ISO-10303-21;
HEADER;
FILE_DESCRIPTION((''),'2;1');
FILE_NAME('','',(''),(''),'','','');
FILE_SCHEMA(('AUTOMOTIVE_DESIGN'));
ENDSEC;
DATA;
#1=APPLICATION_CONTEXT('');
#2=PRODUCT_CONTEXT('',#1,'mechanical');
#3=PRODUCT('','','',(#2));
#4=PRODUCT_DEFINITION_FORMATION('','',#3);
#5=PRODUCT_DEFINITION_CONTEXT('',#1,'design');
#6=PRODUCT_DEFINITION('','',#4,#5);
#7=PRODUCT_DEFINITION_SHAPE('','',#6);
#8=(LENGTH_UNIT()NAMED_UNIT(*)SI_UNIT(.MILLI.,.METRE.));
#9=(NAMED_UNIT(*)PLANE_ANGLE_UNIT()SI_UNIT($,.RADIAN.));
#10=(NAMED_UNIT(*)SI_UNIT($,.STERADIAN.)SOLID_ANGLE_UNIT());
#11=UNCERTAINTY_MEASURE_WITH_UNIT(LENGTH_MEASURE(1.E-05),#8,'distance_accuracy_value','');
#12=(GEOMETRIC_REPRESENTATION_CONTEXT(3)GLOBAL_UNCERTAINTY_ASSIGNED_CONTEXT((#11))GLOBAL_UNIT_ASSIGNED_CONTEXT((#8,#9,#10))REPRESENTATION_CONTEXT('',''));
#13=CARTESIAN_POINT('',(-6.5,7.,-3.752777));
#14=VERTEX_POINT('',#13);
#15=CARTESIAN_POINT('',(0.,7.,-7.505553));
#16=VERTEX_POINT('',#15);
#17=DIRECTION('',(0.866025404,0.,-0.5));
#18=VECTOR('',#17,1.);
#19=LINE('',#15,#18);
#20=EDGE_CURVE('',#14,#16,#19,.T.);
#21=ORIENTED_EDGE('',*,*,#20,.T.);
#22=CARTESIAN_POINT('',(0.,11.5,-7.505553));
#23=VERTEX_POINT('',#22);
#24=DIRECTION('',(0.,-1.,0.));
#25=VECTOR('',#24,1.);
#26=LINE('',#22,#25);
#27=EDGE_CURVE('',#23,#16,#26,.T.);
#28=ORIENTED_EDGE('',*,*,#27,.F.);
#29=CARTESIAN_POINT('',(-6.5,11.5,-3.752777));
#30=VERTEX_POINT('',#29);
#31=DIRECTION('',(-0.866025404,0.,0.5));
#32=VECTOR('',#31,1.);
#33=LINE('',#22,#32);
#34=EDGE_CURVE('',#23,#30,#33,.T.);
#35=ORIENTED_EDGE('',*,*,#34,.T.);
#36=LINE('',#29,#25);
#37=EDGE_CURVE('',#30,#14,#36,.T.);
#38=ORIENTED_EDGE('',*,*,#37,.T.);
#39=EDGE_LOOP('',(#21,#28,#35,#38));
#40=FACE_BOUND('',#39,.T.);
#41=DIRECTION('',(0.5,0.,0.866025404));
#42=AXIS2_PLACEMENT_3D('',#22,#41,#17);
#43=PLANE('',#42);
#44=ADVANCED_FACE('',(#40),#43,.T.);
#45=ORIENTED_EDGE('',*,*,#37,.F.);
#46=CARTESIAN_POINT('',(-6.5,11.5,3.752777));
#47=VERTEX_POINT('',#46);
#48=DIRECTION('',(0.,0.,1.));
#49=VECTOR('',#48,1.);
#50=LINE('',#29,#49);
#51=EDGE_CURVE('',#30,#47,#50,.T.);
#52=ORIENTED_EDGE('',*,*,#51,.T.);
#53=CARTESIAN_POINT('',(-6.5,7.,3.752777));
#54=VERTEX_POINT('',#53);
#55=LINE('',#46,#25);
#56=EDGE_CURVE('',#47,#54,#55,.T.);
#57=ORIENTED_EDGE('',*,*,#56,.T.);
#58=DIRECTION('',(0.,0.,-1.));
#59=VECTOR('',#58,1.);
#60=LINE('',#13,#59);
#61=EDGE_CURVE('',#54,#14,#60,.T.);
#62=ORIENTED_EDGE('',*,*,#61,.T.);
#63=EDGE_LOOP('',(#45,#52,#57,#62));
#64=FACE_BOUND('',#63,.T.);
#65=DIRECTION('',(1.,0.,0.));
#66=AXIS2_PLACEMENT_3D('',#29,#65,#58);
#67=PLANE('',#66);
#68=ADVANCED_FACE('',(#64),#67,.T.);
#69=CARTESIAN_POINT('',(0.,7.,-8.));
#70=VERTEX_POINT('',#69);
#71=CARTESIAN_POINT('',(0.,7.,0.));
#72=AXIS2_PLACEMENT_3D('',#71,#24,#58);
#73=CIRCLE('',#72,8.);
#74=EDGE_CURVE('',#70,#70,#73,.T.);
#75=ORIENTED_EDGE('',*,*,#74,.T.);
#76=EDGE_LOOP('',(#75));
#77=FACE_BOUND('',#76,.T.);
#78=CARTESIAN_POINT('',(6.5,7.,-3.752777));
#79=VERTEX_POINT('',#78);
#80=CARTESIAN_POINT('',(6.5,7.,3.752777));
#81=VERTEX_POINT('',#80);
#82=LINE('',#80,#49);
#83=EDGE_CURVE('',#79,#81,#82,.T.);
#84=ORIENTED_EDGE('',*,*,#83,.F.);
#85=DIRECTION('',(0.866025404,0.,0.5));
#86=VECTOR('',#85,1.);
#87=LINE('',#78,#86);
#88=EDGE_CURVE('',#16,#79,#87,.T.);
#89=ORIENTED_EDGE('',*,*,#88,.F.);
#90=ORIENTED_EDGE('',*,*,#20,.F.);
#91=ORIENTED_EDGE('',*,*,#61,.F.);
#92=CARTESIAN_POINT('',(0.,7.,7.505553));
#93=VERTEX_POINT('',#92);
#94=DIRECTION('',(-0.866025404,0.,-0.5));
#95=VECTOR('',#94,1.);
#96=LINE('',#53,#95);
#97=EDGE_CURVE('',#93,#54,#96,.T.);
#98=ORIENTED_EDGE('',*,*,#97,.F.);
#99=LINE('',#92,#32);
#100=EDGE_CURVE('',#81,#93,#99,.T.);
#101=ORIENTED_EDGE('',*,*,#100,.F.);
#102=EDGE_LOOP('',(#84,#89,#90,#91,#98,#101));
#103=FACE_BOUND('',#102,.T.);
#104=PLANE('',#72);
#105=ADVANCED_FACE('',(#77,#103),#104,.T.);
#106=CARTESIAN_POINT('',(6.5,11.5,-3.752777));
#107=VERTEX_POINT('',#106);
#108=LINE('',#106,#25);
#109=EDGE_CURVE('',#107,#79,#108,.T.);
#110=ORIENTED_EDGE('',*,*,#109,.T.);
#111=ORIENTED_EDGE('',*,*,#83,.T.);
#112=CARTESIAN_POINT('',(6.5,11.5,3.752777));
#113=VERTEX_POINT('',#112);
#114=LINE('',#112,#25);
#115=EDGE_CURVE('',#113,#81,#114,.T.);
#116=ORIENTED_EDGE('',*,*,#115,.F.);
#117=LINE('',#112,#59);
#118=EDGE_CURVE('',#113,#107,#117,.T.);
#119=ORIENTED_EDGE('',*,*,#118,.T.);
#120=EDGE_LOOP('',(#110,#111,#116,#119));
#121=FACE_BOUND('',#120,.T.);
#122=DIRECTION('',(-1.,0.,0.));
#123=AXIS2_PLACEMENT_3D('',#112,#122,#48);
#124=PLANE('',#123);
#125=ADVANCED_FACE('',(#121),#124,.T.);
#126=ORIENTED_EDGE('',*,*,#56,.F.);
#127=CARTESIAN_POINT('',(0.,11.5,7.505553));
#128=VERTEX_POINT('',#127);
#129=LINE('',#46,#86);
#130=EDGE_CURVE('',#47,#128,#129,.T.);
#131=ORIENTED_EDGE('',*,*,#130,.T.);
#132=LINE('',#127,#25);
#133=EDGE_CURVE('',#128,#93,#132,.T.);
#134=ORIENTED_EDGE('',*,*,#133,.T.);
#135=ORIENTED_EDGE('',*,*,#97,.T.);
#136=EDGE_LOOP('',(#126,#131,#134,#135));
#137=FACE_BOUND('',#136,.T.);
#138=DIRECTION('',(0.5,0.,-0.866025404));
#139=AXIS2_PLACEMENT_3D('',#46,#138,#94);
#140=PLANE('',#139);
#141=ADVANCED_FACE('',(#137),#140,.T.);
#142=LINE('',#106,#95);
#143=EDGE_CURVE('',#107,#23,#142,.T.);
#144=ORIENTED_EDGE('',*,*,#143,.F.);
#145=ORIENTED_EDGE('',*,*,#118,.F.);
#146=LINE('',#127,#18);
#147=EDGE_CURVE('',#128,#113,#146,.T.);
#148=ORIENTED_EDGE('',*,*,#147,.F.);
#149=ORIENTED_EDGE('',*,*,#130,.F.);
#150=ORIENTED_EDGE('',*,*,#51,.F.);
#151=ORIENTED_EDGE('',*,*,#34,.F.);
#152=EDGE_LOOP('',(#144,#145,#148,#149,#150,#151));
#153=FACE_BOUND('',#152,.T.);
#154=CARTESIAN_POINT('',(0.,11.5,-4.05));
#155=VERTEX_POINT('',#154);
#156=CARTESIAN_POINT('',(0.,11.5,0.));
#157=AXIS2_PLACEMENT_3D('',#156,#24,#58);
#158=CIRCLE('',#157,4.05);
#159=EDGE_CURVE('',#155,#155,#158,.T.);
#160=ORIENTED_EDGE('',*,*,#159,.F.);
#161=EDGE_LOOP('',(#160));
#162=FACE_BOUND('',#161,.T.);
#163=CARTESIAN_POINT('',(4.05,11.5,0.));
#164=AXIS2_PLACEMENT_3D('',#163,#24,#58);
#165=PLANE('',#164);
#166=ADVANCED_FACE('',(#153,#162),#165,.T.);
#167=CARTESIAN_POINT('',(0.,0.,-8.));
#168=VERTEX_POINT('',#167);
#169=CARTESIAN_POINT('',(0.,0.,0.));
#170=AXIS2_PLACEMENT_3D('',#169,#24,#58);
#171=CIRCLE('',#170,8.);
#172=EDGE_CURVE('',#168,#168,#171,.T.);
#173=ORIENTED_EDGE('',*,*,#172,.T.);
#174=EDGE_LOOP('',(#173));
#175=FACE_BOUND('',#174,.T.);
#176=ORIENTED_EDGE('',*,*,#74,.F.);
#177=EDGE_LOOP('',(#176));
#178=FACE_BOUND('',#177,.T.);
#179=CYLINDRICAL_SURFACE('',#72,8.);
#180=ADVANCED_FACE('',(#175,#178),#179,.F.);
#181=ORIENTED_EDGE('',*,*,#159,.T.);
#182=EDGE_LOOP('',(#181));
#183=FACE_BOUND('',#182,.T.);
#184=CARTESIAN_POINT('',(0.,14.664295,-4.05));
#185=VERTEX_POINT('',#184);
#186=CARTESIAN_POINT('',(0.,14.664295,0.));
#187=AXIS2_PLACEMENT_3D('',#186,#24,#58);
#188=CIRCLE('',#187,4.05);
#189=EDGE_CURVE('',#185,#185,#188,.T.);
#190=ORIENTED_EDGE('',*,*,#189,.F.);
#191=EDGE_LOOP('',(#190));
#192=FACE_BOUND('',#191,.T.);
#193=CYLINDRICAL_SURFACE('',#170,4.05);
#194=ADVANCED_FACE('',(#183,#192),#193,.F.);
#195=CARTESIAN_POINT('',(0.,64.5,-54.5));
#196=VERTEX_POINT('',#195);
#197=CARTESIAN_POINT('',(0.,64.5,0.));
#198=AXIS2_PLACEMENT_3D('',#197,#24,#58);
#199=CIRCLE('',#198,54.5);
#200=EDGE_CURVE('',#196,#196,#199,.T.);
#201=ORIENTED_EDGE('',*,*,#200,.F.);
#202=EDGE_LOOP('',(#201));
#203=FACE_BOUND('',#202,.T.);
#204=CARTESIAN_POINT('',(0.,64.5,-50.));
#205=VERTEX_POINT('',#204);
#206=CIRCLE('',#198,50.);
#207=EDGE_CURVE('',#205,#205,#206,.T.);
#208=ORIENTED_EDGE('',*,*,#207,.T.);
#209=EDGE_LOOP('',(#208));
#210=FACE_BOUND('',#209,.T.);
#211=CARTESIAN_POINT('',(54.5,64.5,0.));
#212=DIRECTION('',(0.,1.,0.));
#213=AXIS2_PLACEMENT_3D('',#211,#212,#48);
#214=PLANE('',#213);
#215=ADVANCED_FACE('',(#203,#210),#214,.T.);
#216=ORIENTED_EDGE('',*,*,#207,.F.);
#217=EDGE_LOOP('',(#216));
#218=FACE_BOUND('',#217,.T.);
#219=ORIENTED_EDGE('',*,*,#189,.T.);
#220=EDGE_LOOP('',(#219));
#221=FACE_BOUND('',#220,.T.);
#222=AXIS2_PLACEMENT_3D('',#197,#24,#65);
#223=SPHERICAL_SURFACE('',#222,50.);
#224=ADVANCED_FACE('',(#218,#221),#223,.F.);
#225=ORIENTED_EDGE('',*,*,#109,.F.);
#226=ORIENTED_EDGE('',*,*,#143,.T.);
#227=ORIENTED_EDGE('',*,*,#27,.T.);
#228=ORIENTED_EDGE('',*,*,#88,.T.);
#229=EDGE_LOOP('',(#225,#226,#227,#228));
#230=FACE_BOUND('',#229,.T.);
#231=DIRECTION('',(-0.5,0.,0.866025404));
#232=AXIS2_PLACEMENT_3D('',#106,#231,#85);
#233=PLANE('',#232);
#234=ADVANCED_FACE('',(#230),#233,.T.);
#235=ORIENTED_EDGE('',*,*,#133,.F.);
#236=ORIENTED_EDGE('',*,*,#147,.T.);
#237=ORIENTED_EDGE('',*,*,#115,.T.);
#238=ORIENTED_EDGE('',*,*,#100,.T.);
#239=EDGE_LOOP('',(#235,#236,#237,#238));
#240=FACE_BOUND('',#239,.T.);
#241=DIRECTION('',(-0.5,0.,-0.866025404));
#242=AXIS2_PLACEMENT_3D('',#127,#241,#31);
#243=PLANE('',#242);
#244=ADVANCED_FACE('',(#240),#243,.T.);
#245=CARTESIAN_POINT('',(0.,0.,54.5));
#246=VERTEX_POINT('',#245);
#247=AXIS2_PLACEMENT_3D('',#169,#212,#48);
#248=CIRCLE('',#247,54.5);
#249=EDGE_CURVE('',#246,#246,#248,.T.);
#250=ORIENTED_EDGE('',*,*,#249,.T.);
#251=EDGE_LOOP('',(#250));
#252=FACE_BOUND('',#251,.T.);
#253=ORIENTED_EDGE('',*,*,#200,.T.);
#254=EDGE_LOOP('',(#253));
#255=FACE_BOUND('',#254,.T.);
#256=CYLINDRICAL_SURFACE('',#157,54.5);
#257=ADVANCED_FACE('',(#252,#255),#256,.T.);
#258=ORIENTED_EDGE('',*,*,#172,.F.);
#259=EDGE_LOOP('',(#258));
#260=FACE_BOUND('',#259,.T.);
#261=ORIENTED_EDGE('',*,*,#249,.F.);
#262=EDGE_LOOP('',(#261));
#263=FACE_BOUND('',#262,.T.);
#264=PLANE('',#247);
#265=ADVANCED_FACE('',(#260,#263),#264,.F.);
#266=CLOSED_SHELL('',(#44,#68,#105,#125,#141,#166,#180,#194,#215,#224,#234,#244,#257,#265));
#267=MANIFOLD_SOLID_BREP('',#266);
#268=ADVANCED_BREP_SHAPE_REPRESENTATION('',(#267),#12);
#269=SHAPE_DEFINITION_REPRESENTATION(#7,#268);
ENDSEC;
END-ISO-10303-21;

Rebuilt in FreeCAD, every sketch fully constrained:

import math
import FreeCAD as App
import Part
import Sketcher
Q = App.Units.Quantity

doc = App.newDocument("Part")
body = doc.addObject("PartDesign::Body", "Body")

# Sketch on XZ plane
sketch1 = body.newObject("Sketcher::SketchObject", "Sketch")
sketch1.AttachmentSupport = (doc.getObject("XZ_Plane"), [""])
sketch1.MapMode = "FlatFace"
sketch1.addGeometry([
    Part.Circle(App.Vector(0, 0, 0), App.Vector(0, 0, 1), 54),  # 0
    Part.LineSegment(App.Vector(-6, -4, 0), App.Vector(0, -8, 0)),  # 1
    Part.LineSegment(App.Vector(0, -8, 0), App.Vector(6, -4, 0)),  # 2
    Part.LineSegment(App.Vector(6, -4, 0), App.Vector(6, 4, 0)),  # 3
    Part.LineSegment(App.Vector(6, 4, 0), App.Vector(0, 8, 0)),  # 4
    Part.LineSegment(App.Vector(0, 8, 0), App.Vector(-6, 4, 0)),  # 5
    Part.LineSegment(App.Vector(-6, 4, 0), App.Vector(-6, -4, 0)),  # 6
], False)
sketch1.addConstraint([
    Sketcher.Constraint("Coincident", 1, 2, 2, 1),
    Sketcher.Constraint("Coincident", 2, 2, 3, 1),
    Sketcher.Constraint("Coincident", 3, 2, 4, 1),
    Sketcher.Constraint("Coincident", 4, 2, 5, 1),
    Sketcher.Constraint("Coincident", 5, 2, 6, 1),
    Sketcher.Constraint("Coincident", 6, 2, 1, 1),
    Sketcher.Constraint("Vertical", 3),
    Sketcher.Constraint("Vertical", 6),
    Sketcher.Constraint("Coincident", 0, 3, -1, 1),
    Sketcher.Constraint("Symmetric", 1, 2, 4, 2, -1, 1),
    Sketcher.Constraint("Symmetric", 2, 2, 5, 2, -1, 1),
    Sketcher.Constraint("PointOnObject", 1, 2, -2),
    Sketcher.Constraint("Parallel", 1, 4),
    Sketcher.Constraint("Horizontal", 3, 2, 5, 2),
    Sketcher.Constraint("Diameter", 0, Q("109 mm")),
    Sketcher.Constraint("Angle", 1, Q("-30 deg")),
    Sketcher.Constraint("DistanceX", 5, 2, 3, 2, Q("13 mm")),
    Sketcher.Constraint("DistanceY", 3, 1, 3, 2, Q("7.505554 mm")),
])
pad1 = body.newObject("PartDesign::Pad", "Pad")
pad1.Profile = sketch1
pad1.Length = 11.5
pad1.Reversed = True

# Sketch on XZ plane
sketch2 = body.newObject("Sketcher::SketchObject", "Sketch001")
sketch2.AttachmentSupport = (doc.getObject("XZ_Plane"), [""])
sketch2.MapMode = "FlatFace"
sketch2.addGeometry(Part.Circle(App.Vector(0, 0, 0), App.Vector(0, 0, 1), 8), False)
sketch2.addConstraint([
    Sketcher.Constraint("Coincident", 0, 3, -1, 1),
    Sketcher.Constraint("Diameter", 0, Q("16 mm")),
])
pocket1 = body.newObject("PartDesign::Pocket", "Pocket")
pocket1.Profile = sketch2
pocket1.Length = 7

# Sketch on XY plane
sketch3 = body.newObject("Sketcher::SketchObject", "Sketch002")
sketch3.AttachmentSupport = (doc.getObject("XY_Plane"), [""])
sketch3.MapMode = "FlatFace"
sketch3.addGeometry([
    Part.LineSegment(App.Vector(4, 14.7, 0), App.Vector(4, 11.5, 0)),  # 0
    Part.LineSegment(App.Vector(4, 11.5, 0), App.Vector(54.5, 11.5, 0)),  # 1
    Part.LineSegment(App.Vector(54.5, 11.5, 0), App.Vector(54.5, 64.5, 0)),  # 2
    Part.LineSegment(App.Vector(54.5, 64.5, 0), App.Vector(50, 64.5, 0)),  # 3
    Part.ArcOfCircle(Part.Circle(App.Vector(0, 64.5, 0), App.Vector(0, 0, 1), 50), math.radians(-85), math.radians(0)),  # 4
], False)
sketch3.addConstraint([
    Sketcher.Constraint("Coincident", 0, 2, 1, 1),
    Sketcher.Constraint("Coincident", 1, 2, 2, 1),
    Sketcher.Constraint("Coincident", 2, 2, 3, 1),
    Sketcher.Constraint("Coincident", 3, 2, 4, 2),
    Sketcher.Constraint("Coincident", 4, 1, 0, 1),
    Sketcher.Constraint("Vertical", 0),
    Sketcher.Constraint("Horizontal", 1),
    Sketcher.Constraint("Vertical", 2),
    Sketcher.Constraint("Horizontal", 3),
    Sketcher.Constraint("PointOnObject", 4, 3, -2),
    Sketcher.Constraint("Horizontal", 4, 3, 2, 2),
    Sketcher.Constraint("Radius", 4, Q("50 mm")),
    Sketcher.Constraint("DistanceY", 2, 1, 2, 2, Q("53 mm")),
    Sketcher.Constraint("DistanceX", 3, 2, 3, 1, Q("4.5 mm")),
    Sketcher.Constraint("DistanceX", 1, 1, 1, 2, Q("50.45 mm")),
    Sketcher.Constraint("DistanceY", -1, 1, 4, 3, Q("64.5 mm")),
])
revolution = body.newObject("PartDesign::Revolution", "Revolution")
revolution.Profile = sketch3
revolution.ReferenceAxis = (sketch3, ["V_Axis"])
revolution.Angle = 360

doc.recompute()
